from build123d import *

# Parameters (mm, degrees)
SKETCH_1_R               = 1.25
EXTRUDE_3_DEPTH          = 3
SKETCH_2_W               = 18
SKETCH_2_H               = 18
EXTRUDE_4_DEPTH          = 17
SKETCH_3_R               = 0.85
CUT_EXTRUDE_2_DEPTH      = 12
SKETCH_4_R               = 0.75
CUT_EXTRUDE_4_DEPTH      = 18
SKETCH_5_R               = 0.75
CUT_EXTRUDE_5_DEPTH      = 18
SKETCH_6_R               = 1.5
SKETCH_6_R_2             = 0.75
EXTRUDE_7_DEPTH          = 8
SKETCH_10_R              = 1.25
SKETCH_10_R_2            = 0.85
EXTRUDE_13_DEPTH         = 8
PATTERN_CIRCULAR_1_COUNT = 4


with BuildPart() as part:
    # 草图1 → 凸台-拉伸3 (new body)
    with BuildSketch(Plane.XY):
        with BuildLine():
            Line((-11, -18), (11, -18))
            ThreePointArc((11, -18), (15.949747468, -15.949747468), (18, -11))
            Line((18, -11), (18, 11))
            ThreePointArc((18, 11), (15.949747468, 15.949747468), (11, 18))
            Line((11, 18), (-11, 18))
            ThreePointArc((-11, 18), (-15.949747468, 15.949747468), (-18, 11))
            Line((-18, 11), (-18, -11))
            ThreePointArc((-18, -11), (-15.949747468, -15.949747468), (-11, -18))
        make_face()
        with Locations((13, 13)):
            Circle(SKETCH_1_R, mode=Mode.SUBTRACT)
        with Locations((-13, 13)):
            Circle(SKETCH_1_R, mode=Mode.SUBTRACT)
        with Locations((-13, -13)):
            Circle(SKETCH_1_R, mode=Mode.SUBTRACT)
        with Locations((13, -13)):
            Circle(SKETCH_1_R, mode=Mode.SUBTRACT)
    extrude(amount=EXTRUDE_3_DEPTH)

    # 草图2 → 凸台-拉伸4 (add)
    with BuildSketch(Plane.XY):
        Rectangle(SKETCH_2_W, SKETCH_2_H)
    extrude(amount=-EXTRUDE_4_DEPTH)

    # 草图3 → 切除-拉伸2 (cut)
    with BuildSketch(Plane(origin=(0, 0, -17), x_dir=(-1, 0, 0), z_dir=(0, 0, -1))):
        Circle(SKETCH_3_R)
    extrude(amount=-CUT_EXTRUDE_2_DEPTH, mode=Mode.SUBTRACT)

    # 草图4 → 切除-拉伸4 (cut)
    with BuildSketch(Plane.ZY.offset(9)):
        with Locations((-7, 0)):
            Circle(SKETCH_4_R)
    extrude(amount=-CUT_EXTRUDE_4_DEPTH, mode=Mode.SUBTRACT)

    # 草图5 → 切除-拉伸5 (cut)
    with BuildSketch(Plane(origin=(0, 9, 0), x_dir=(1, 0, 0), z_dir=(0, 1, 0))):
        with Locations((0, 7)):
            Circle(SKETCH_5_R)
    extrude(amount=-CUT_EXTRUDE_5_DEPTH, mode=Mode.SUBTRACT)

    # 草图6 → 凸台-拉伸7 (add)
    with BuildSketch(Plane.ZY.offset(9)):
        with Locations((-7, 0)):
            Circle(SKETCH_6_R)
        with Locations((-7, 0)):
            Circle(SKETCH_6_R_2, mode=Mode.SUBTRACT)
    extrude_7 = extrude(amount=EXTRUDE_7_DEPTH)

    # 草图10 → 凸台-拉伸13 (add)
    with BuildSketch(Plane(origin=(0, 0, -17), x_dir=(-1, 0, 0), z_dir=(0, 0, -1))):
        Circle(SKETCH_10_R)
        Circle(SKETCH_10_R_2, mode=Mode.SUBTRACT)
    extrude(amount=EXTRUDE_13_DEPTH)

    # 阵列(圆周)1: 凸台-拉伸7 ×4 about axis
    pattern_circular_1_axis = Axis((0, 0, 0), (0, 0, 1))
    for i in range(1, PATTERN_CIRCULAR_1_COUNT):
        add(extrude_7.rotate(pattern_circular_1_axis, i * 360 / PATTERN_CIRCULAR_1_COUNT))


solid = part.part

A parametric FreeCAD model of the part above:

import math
import FreeCAD as App
import Part
import Sketcher
from FreeCAD import Vector
Q = App.Units.Quantity


def add_polygon(sketch, points):
    """Adds a closed chain of lines whose ends are joined by coincident constraints."""
    first, n = sketch.GeometryCount, len(points)
    for a, b in zip(points, points[1:] + points[:1]):
        sketch.addGeometry(Part.LineSegment(App.Vector(*a, 0), App.Vector(*b, 0)), False)
    for i in range(n):
        sketch.addConstraint(Sketcher.Constraint("Coincident", first + i, 2, first + (i + 1) % n, 1))

doc = App.newDocument("Part")
body = doc.addObject("PartDesign::Body", "Body")

# Sketch on XY plane
sketch1 = body.newObject("Sketcher::SketchObject", "Sketch")
sketch1.AttachmentSupport = (doc.getObject("XY_Plane"), [""])
sketch1.MapMode = "FlatFace"
sketch1.addGeometry([
    Part.LineSegment(Vector(-11, -18, 0), Vector(11, -18, 0)),  # 0
    Part.ArcOfCircle(Part.Circle(Vector(11, -11, 0), Vector(0, 0, 1), 7), math.radians(-90), math.radians(0)),  # 1
    Part.LineSegment(Vector(18, -11, 0), Vector(18, 11, 0)),  # 2
    Part.ArcOfCircle(Part.Circle(Vector(11, 11, 0), Vector(0, 0, 1), 7), math.radians(0), math.radians(90)),  # 3
    Part.LineSegment(Vector(11, 18, 0), Vector(-11, 18, 0)),  # 4
    Part.ArcOfCircle(Part.Circle(Vector(-11, 11, 0), Vector(0, 0, 1), 7), math.radians(90), math.radians(180)),  # 5
    Part.LineSegment(Vector(-18, 11, 0), Vector(-18, -11, 0)),  # 6
    Part.ArcOfCircle(Part.Circle(Vector(-11, -11, 0), Vector(0, 0, 1), 7), math.radians(-180), math.radians(-90)),  # 7
    Part.Circle(Vector(-13, -13, 0), Vector(0, 0, 1), 1.2),  # 8
    Part.Circle(Vector(13, -13, 0), Vector(0, 0, 1), 1.2),  # 9
    Part.Circle(Vector(-13, 13, 0), Vector(0, 0, 1), 1.2),  # 10
    Part.Circle(Vector(13, 13, 0), Vector(0, 0, 1), 1.2),  # 11
], False)
sketch1.addConstraint([
    Sketcher.Constraint("Tangent", 0, 2, 1, 1),
    Sketcher.Constraint("Tangent", 1, 2, 2, 1),
    Sketcher.Constraint("Tangent", 2, 2, 3, 1),
    Sketcher.Constraint("Tangent", 3, 2, 4, 1),
    Sketcher.Constraint("Tangent", 4, 2, 5, 1),
    Sketcher.Constraint("Tangent", 5, 2, 6, 1),
    Sketcher.Constraint("Tangent", 6, 2, 7, 1),
    Sketcher.Constraint("Tangent", 7, 2, 0, 1),
    Sketcher.Constraint("Horizontal", 0),
    Sketcher.Constraint("Vertical", 2),
    Sketcher.Constraint("Horizontal", 4),
    Sketcher.Constraint("Vertical", 6),
    Sketcher.Constraint("Equal", 1, 3),
    Sketcher.Constraint("Equal", 3, 5),
    Sketcher.Constraint("Equal", 5, 7),
    Sketcher.Constraint("Equal", 8, 9),
    Sketcher.Constraint("Equal", 9, 10),
    Sketcher.Constraint("Equal", 10, 11),
    Sketcher.Constraint("Symmetric", 1, 3, 5, 3, -1, 1),
    Sketcher.Constraint("Symmetric", 9, 3, 10, 3, -1, 1),
    Sketcher.Constraint("Symmetric", 8, 3, 11, 3, -1, 1),
    Sketcher.Constraint("Symmetric", 8, 3, 9, 3, -2),
    Sketcher.Constraint("Equal", 4, 2),
    Sketcher.Constraint("Radius", 1, Q("7 mm")),
    Sketcher.Constraint("Diameter", 8, Q("2.5 mm")),
    Sketcher.Constraint("DistanceX", 0, 1, 0, 2, Q("22 mm")),
    Sketcher.Constraint("DistanceX", 8, 3, -1, 1, Q("13 mm")),
    Sketcher.Constraint("DistanceY", 8, 3, -1, 1, Q("13 mm")),
])
pad1 = body.newObject("PartDesign::Pad", "Pad")
pad1.Profile = sketch1
pad1.Length = 3

# Sketch on XY plane
sketch2 = body.newObject("Sketcher::SketchObject", "Sketch001")
sketch2.AttachmentSupport = (doc.getObject("XY_Plane"), [""])
sketch2.MapMode = "FlatFace"
add_polygon(sketch2, [(-9, 9), (-9, -9), (9, -9), (9, 9)])  # lines 0-3
sketch2.addConstraint([
    Sketcher.Constraint("Vertical", 0),
    Sketcher.Constraint("Horizontal", 1),
    Sketcher.Constraint("Vertical", 2),
    Sketcher.Constraint("Horizontal", 3),
    Sketcher.Constraint("Symmetric", 0, 2, 2, 2, -1, 1),
    Sketcher.Constraint("Equal", 3, 0),
    Sketcher.Constraint("DistanceX", 1, 1, 1, 2, Q("18 mm")),
])
pad2 = body.newObject("PartDesign::Pad", "Pad001")
pad2.Profile = sketch2
pad2.Length = 17
pad2.Reversed = True

# Sketch on XY plane
sketch3 = body.newObject("Sketcher::SketchObject", "Sketch002")
sketch3.AttachmentSupport = (doc.getObject("XY_Plane"), [""])
sketch3.MapMode = "FlatFace"
sketch3.AttachmentOffset = App.Placement(Vector(0, 0, -17), App.Rotation())
sketch3.addGeometry(Part.Circle(Vector(0, 0, 0), Vector(0, 0, 1), 0.8), False)
sketch3.addConstraint([
    Sketcher.Constraint("Coincident", 0, 3, -1, 1),
    Sketcher.Constraint("Diameter", 0, Q("1.7 mm")),
])
pocket1 = body.newObject("PartDesign::Pocket", "Pocket")
pocket1.Profile = sketch3
pocket1.Length = 12
pocket1.Reversed = True

# Sketch on YZ plane
sketch4 = body.newObject("Sketcher::SketchObject", "Sketch003")
sketch4.AttachmentSupport = (doc.getObject("YZ_Plane"), [""])
sketch4.MapMode = "FlatFace"
sketch4.AttachmentOffset = App.Placement(Vector(0, 0, -9), App.Rotation())
sketch4.addGeometry(Part.Circle(Vector(0, -7, 0), Vector(0, 0, 1), 0.8), False)
sketch4.addConstraint([
    Sketcher.Constraint("PointOnObject", 0, 3, -2),
    Sketcher.Constraint("Diameter", 0, Q("1.5 mm")),
    Sketcher.Constraint("DistanceY", 0, 3, -1, 1, Q("7 mm")),
])
pocket2 = body.newObject("PartDesign::Pocket", "Pocket001")
pocket2.Profile = sketch4
pocket2.Length = 18
pocket2.Reversed = True

# Sketch on XZ plane
sketch5 = body.newObject("Sketcher::SketchObject", "Sketch004")
sketch5.AttachmentSupport = (doc.getObject("XZ_Plane"), [""])
sketch5.MapMode = "FlatFace"
sketch5.AttachmentOffset = App.Placement(Vector(0, 0, -9), App.Rotation())
sketch5.addGeometry(Part.Circle(Vector(0, -7, 0), Vector(0, 0, 1), 0.8), False)
sketch5.addConstraint([
    Sketcher.Constraint("PointOnObject", 0, 3, -2),
    Sketcher.Constraint("Diameter", 0, Q("1.5 mm")),
    Sketcher.Constraint("DistanceY", 0, 3, -1, 1, Q("7 mm")),
])
pocket3 = body.newObject("PartDesign::Pocket", "Pocket002")
pocket3.Profile = sketch5
pocket3.Length = 18
pocket3.Reversed = True

# Sketch on YZ plane
sketch6 = body.newObject("Sketcher::SketchObject", "Sketch005")
sketch6.AttachmentSupport = (doc.getObject("YZ_Plane"), [""])
sketch6.MapMode = "FlatFace"
sketch6.AttachmentOffset = App.Placement(Vector(0, 0, -9), App.Rotation())
sketch6.addGeometry([
    Part.Circle(Vector(0, -7, 0), Vector(0, 0, 1), 1.5),
    Part.Circle(Vector(0, -7, 0), Vector(0, 0, 1), 0.8),
], False)
sketch6.addConstraint([
    Sketcher.Constraint("Coincident", 1, 3, 0, 3),
    Sketcher.Constraint("PointOnObject", 0, 3, -2),
    Sketcher.Constraint("Diameter", 0, Q("3 mm")),
    Sketcher.Constraint("Diameter", 1, Q("1.5 mm")),
    Sketcher.Constraint("DistanceY", 0, 3, -1, 1, Q("7 mm")),
])
pad3 = body.newObject("PartDesign::Pad", "Pad002")
pad3.Profile = sketch6
pad3.Length = 8
pad3.Reversed = True

# Sketch on XY plane
sketch7 = body.newObject("Sketcher::SketchObject", "Sketch006")
sketch7.AttachmentSupport = (doc.getObject("XY_Plane"), [""])
sketch7.MapMode = "FlatFace"
sketch7.AttachmentOffset = App.Placement(Vector(0, 0, -17), App.Rotation())
sketch7.addGeometry([
    Part.Circle(Vector(0, 0, 0), Vector(0, 0, 1), 1.2),
    Part.Circle(Vector(0, 0, 0), Vector(0, 0, 1), 0.8),
], False)
sketch7.addConstraint([
    Sketcher.Constraint("Coincident", 0, 3, -1, 1),
    Sketcher.Constraint("Coincident", 1, 3, -1, 1),
    Sketcher.Constraint("Diameter", 0, Q("2.5 mm")),
    Sketcher.Constraint("Diameter", 1, Q("1.7 mm")),
])
pad4 = body.newObject("PartDesign::Pad", "Pad003")
pad4.Profile = sketch7
pad4.Length = 8
pad4.Reversed = True
doc.recompute()

polarpattern = body.newObject("PartDesign::PolarPattern", "PolarPattern")
polarpattern.Originals = [pad3]
polarpattern.Axis = (doc.getObject("Z_Axis"), [""])
polarpattern.Angle = 360
polarpattern.Occurrences = 4
body.Tip = polarpattern

doc.recompute()
